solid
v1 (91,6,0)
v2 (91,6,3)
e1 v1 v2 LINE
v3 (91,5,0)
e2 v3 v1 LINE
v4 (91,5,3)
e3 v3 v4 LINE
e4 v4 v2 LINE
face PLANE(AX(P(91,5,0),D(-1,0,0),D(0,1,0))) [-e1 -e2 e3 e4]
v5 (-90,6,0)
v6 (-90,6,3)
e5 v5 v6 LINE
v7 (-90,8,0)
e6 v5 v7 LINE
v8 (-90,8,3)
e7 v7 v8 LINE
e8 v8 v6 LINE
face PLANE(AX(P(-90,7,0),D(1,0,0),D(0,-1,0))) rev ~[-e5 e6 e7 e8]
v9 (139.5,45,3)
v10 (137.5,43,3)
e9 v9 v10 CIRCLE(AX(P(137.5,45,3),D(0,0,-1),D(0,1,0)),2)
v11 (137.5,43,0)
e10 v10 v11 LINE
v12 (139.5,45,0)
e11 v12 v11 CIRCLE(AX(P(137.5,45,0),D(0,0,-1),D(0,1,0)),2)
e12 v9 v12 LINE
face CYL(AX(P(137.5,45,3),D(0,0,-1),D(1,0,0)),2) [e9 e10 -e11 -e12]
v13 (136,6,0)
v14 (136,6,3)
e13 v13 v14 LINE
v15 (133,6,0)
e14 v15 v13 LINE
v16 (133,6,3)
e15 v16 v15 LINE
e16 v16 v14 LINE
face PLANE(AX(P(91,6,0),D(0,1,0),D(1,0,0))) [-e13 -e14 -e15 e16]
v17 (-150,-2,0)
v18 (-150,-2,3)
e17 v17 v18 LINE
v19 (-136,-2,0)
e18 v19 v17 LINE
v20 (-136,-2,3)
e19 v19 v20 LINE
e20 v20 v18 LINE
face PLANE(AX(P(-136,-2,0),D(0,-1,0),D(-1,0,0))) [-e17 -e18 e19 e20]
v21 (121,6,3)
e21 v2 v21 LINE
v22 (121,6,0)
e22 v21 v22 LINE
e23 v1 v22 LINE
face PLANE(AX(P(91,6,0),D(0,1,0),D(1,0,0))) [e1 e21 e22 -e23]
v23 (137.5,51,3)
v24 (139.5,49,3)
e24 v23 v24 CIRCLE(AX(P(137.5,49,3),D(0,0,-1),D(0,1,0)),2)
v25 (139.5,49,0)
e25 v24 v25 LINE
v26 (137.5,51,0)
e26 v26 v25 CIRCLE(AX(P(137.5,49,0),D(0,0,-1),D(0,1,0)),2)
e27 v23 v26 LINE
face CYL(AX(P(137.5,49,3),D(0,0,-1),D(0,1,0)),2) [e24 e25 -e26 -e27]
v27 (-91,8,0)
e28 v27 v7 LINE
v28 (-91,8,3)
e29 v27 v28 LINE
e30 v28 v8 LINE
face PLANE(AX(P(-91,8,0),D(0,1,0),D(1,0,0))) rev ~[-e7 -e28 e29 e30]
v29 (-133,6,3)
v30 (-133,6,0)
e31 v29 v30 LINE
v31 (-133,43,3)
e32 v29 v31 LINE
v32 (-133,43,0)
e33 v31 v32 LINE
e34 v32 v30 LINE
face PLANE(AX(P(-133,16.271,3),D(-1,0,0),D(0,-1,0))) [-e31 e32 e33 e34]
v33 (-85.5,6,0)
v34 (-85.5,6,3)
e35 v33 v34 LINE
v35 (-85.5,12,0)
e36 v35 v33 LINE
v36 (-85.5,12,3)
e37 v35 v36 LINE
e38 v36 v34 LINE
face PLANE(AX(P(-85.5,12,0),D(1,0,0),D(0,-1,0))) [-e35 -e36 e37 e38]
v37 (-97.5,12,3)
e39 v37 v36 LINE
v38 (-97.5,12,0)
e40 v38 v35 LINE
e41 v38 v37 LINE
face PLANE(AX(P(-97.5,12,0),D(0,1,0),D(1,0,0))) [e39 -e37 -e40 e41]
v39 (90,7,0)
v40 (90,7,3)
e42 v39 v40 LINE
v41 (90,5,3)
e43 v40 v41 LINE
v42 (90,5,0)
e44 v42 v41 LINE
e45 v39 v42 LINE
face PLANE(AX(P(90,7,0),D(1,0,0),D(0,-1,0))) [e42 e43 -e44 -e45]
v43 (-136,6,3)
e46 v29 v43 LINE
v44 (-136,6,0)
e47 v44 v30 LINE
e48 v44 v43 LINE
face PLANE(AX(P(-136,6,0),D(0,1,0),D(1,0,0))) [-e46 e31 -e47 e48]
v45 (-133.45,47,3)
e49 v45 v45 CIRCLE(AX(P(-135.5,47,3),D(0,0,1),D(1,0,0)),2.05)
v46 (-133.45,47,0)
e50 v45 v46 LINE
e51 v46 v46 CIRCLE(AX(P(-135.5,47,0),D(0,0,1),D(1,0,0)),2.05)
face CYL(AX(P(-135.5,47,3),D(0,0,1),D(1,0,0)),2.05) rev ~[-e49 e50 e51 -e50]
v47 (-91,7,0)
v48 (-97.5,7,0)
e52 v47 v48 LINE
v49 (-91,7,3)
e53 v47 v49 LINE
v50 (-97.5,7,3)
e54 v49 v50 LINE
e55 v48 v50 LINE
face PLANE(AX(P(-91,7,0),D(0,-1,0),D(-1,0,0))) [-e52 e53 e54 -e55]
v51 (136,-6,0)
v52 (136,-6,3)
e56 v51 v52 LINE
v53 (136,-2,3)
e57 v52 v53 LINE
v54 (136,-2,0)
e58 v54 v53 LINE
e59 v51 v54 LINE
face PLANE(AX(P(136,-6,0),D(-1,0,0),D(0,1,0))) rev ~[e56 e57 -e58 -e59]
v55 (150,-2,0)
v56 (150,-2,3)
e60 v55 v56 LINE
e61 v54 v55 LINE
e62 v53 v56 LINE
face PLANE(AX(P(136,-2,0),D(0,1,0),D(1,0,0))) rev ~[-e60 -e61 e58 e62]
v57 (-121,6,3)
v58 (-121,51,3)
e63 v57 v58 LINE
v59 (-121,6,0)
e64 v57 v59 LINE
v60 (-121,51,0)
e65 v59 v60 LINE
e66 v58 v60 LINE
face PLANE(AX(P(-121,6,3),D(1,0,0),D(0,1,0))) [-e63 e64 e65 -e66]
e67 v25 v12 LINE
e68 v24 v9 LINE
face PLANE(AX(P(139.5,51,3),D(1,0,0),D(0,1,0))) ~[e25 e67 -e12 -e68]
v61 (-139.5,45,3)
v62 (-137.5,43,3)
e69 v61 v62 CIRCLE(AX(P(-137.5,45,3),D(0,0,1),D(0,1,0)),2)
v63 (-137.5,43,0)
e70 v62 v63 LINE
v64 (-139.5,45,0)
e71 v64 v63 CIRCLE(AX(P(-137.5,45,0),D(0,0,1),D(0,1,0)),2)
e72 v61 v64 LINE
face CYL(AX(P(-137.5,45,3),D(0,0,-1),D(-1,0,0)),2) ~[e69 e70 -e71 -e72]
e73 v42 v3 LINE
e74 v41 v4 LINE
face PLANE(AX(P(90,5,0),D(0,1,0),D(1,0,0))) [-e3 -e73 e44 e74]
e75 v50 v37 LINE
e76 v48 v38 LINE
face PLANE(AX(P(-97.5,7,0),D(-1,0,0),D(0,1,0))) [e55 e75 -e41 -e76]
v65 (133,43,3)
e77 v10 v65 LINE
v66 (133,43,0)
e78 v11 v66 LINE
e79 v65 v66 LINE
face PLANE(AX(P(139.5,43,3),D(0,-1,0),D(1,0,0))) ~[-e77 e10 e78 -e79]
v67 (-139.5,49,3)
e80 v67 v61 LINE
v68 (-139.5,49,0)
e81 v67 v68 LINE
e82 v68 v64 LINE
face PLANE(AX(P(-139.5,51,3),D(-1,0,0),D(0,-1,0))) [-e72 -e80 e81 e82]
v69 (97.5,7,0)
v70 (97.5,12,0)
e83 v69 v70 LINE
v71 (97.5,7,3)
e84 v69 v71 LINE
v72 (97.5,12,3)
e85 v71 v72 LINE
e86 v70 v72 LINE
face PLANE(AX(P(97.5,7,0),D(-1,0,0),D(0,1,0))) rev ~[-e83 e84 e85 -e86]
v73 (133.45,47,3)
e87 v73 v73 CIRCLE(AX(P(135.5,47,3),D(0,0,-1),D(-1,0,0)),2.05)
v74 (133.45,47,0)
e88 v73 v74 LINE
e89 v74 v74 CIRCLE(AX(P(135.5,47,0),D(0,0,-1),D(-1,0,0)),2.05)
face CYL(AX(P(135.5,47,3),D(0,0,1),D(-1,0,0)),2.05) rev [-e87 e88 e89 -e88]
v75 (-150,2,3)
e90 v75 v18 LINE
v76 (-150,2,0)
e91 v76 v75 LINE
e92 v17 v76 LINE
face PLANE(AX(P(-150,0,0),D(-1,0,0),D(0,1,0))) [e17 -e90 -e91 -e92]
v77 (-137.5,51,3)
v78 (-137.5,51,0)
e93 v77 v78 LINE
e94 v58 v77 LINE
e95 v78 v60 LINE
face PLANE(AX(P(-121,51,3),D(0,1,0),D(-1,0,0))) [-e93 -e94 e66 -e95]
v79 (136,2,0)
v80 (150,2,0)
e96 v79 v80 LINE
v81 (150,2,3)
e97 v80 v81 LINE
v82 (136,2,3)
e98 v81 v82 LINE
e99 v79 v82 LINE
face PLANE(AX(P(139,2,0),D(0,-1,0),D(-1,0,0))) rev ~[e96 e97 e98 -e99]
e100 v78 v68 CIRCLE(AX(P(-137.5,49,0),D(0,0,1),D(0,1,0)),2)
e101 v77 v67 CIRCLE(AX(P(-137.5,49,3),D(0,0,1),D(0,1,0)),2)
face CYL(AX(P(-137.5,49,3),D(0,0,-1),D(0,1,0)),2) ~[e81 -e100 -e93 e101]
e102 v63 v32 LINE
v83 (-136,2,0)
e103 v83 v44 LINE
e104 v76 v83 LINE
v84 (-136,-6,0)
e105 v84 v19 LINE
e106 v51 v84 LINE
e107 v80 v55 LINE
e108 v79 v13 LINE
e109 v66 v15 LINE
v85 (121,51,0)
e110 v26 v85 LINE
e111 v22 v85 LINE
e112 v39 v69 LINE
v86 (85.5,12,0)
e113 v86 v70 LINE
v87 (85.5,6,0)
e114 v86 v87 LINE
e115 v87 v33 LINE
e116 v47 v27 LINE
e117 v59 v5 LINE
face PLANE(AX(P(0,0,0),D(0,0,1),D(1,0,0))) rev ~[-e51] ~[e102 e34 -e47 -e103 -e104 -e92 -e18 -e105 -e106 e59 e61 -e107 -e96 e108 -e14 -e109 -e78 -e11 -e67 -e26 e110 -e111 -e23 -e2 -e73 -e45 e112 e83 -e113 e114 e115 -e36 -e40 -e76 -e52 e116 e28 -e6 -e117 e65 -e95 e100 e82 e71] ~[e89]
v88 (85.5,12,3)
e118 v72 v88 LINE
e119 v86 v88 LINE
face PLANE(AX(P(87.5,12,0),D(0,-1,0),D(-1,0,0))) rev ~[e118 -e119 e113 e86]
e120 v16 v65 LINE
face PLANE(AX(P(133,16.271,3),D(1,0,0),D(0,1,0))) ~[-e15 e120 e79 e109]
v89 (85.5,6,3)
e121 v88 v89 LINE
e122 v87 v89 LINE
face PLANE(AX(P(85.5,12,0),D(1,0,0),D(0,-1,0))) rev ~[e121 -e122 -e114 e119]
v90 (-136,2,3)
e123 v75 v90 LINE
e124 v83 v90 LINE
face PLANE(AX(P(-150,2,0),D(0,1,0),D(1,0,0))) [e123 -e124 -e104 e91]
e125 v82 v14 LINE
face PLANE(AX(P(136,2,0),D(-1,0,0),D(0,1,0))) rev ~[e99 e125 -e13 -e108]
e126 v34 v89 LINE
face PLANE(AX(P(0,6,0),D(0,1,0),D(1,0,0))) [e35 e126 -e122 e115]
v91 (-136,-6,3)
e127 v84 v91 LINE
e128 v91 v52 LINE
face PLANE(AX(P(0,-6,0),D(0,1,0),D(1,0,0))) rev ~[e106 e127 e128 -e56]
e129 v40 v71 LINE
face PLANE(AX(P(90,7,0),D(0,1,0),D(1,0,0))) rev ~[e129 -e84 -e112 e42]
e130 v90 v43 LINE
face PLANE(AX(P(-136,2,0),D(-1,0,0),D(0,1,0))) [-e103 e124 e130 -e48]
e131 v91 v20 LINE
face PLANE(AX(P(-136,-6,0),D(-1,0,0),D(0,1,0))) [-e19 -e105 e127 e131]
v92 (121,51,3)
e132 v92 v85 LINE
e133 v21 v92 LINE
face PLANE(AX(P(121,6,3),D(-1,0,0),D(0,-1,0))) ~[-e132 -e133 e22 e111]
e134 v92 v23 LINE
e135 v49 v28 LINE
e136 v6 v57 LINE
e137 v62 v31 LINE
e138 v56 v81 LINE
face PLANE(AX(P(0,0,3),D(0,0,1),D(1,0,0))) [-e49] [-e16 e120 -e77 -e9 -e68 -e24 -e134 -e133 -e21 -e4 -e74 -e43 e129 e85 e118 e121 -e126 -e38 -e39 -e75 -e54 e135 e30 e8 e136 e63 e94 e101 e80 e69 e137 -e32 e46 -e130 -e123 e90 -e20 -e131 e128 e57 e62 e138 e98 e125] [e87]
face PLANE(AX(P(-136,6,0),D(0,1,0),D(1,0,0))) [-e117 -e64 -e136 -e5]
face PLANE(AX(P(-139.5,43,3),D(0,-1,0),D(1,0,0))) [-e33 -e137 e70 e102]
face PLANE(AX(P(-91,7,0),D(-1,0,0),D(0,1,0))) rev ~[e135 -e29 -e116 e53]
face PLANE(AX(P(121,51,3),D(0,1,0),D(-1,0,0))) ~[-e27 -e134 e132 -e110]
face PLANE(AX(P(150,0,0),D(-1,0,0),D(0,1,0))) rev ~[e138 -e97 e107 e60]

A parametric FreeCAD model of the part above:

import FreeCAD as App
import Part
import Sketcher

V = App.Vector


def edges_at(feature, points):
    """Names of the edges that pass closest to the given points."""
    edges = feature.Shape.Edges
    near = lambda p: min(range(len(edges)), key=lambda i: edges[i].distToShape(Part.Vertex(*p))[0])
    return sorted({f"Edge{near(p) + 1}" for p in points})

doc = App.newDocument("Part")
body = doc.addObject("PartDesign::Body", "Body")

sketch1 = doc.addObject("Sketcher::SketchObject", "Sketch")
body.addObject(sketch1)
sketch1.AttachmentSupport = (doc.XY_Plane, [""])
sketch1.MapMode = "FlatFace"
sketch1.addGeometry([
    Part.LineSegment(V(85.5, 6, 0), V(-85.5, 6, 0)),
    Part.LineSegment(V(-85.5, 6, 0), V(-85.5, 12, 0)),
    Part.LineSegment(V(-85.5, 12, 0), V(-97.5, 12, 0)),
    Part.LineSegment(V(-97.5, 12, 0), V(-97.5, 7, 0)),
    Part.LineSegment(V(-97.5, 7, 0), V(-91, 7, 0)),
    Part.LineSegment(V(-91, 7, 0), V(-91, 8, 0)),
    Part.LineSegment(V(-91, 8, 0), V(-90, 8, 0)),
    Part.LineSegment(V(-90, 8, 0), V(-90, 6, 0)),
    Part.LineSegment(V(-90, 6, 0), V(-136, 6, 0)),
    Part.LineSegment(V(-136, 6, 0), V(-136, 2, 0)),
    Part.LineSegment(V(-136, 2, 0), V(-150, 2, 0)),
    Part.LineSegment(V(-150, 2, 0), V(-150, -2, 0)),
    Part.LineSegment(V(-150, -2, 0), V(-136, -2, 0)),
    Part.LineSegment(V(-136, -2, 0), V(-136, -6, 0)),
    Part.LineSegment(V(-136, -6, 0), V(136, -6, 0)),
    Part.LineSegment(V(136, -6, 0), V(136, -2, 0)),
    Part.LineSegment(V(136, -2, 0), V(150, -2, 0)),
    Part.LineSegment(V(150, -2, 0), V(150, 2, 0)),
    Part.LineSegment(V(150, 2, 0), V(136, 2, 0)),
    Part.LineSegment(V(136, 2, 0), V(136, 6, 0)),
    Part.LineSegment(V(136, 6, 0), V(91, 6, 0)),
    Part.LineSegment(V(91, 6, 0), V(91, 5, 0)),
    Part.LineSegment(V(91, 5, 0), V(90, 5, 0)),
    Part.LineSegment(V(90, 5, 0), V(90, 7, 0)),
    Part.LineSegment(V(90, 7, 0), V(97.5, 7, 0)),
    Part.LineSegment(V(97.5, 7, 0), V(97.5, 12, 0)),
    Part.LineSegment(V(97.5, 12, 0), V(85.5, 12, 0)),
    Part.LineSegment(V(85.5, 12, 0), V(85.5, 6, 0)),
], False)
sketch1.addConstraint([
    Sketcher.Constraint("Coincident", 0, 2, 1, 1),
    Sketcher.Constraint("Coincident", 1, 2, 2, 1),
    Sketcher.Constraint("Coincident", 2, 2, 3, 1),
    Sketcher.Constraint("Coincident", 3, 2, 4, 1),
    Sketcher.Constraint("Coincident", 4, 2, 5, 1),
    Sketcher.Constraint("Coincident", 5, 2, 6, 1),
    Sketcher.Constraint("Coincident", 6, 2, 7, 1),
    Sketcher.Constraint("Coincident", 7, 2, 8, 1),
    Sketcher.Constraint("Coincident", 8, 2, 9, 1),
    Sketcher.Constraint("Coincident", 9, 2, 10, 1),
    Sketcher.Constraint("Coincident", 10, 2, 11, 1),
    Sketcher.Constraint("Coincident", 11, 2, 12, 1),
    Sketcher.Constraint("Coincident", 12, 2, 13, 1),
    Sketcher.Constraint("Coincident", 13, 2, 14, 1),
    Sketcher.Constraint("Coincident", 14, 2, 15, 1),
    Sketcher.Constraint("Coincident", 15, 2, 16, 1),
    Sketcher.Constraint("Coincident", 16, 2, 17, 1),
    Sketcher.Constraint("Coincident", 17, 2, 18, 1),
    Sketcher.Constraint("Coincident", 18, 2, 19, 1),
    Sketcher.Constraint("Coincident", 19, 2, 20, 1),
    Sketcher.Constraint("Coincident", 20, 2, 21, 1),
    Sketcher.Constraint("Coincident", 21, 2, 22, 1),
    Sketcher.Constraint("Coincident", 22, 2, 23, 1),
    Sketcher.Constraint("Coincident", 23, 2, 24, 1),
    Sketcher.Constraint("Coincident", 24, 2, 25, 1),
    Sketcher.Constraint("Coincident", 25, 2, 26, 1),
    Sketcher.Constraint("Coincident", 26, 2, 27, 1),
    Sketcher.Constraint("Coincident", 27, 2, 0, 1),
    Sketcher.Constraint("Horizontal", 0),
    Sketcher.Constraint("Vertical", 1),
    Sketcher.Constraint("Horizontal", 2),
    Sketcher.Constraint("Vertical", 3),
    Sketcher.Constraint("Horizontal", 4),
    Sketcher.Constraint("Vertical", 5),
    Sketcher.Constraint("Horizontal", 6),
    Sketcher.Constraint("Vertical", 7),
    Sketcher.Constraint("Horizontal", 8),
    Sketcher.Constraint("Vertical", 9),
    Sketcher.Constraint("Horizontal", 10),
    Sketcher.Constraint("Vertical", 11),
    Sketcher.Constraint("Horizontal", 12),
    Sketcher.Constraint("Vertical", 13),
    Sketcher.Constraint("Horizontal", 14),
    Sketcher.Constraint("Vertical", 15),
    Sketcher.Constraint("Horizontal", 16),
    Sketcher.Constraint("Vertical", 17),
    Sketcher.Constraint("Horizontal", 18),
    Sketcher.Constraint("Vertical", 19),
    Sketcher.Constraint("Horizontal", 20),
    Sketcher.Constraint("Vertical", 21),
    Sketcher.Constraint("Horizontal", 22),
    Sketcher.Constraint("Vertical", 23),
    Sketcher.Constraint("Horizontal", 24),
    Sketcher.Constraint("Vertical", 25),
    Sketcher.Constraint("Horizontal", 26),
    Sketcher.Constraint("Vertical", 27),
    Sketcher.Constraint("Symmetric", 8, 2, 14, 2, -1, 1),
    Sketcher.Constraint("Symmetric", 10, 2, 16, 2, -1, 1),
    Sketcher.Constraint("Symmetric", 12, 2, 18, 2, -1, 1),
    Sketcher.Constraint("Symmetric", 12, 2, 15, 2, -2),
    Sketcher.Constraint("Symmetric", 3, 2, 24, 2, -2),
    Sketcher.Constraint("Symmetric", 1, 2, 26, 2, -2),
    Sketcher.Constraint("Horizontal", 0, 2, 7, 2),
    Sketcher.Constraint("Horizontal", 8, 2, 19, 2),
    Sketcher.Constraint("Equal", 6, 22),
    Sketcher.Constraint("Equal", 22, 5),
    Sketcher.Constraint("Equal", 9, 11),
    Sketcher.Constraint("Equal", 5, 21),
    Sketcher.Constraint("DistanceX", 2, 2, 2, 1, 12.0),
    Sketcher.Constraint("DistanceX", 10, 2, 10, 1, 14.0),
    Sketcher.Constraint("DistanceX", 14, 1, 14, 2, 272.0),
    Sketcher.Constraint("DistanceY", 1, 1, 1, 2, 6.0),
    Sketcher.Constraint("DistanceY", 3, 2, 3, 1, 5.0),
    Sketcher.Constraint("DistanceY", 7, 2, 7, 1, 2.0),
    Sketcher.Constraint("DistanceY", 9, 2, 9, 1, 4.0),
    Sketcher.Constraint("DistanceX", 4, 1, 4, 2, 6.5),
    Sketcher.Constraint("DistanceX", 0, 2, -1, 1, 85.5),
    Sketcher.Constraint("DistanceX", 20, 2, 24, 2, 6.5),
])
pad1 = doc.addObject("PartDesign::Pad", "Pad")
body.addObject(pad1)
pad1.Profile = sketch1
pad1.Length = 3

sketch2 = doc.addObject("Sketcher::SketchObject", "Sketch001")
body.addObject(sketch2)
sketch2.AttachmentSupport = (doc.XY_Plane, [""])
sketch2.MapMode = "FlatFace"
sketch2.addGeometry(Part.Circle(V(-129.5, 0, 0), V(0, 0, 1), 2.05), False)
sketch2.addConstraint([
    Sketcher.Constraint("PointOnObject", 0, 3, -1),
    Sketcher.Constraint("Diameter", 0, 4.1),
    Sketcher.Constraint("DistanceX", 0, 3, -1, 1, 129.5),
])
pocket1 = doc.addObject("PartDesign::Pocket", "Pocket")
body.addObject(pocket1)
pocket1.Profile = sketch2
pocket1.Length = 3
pocket1.Reversed = True

sketch3 = doc.addObject("Sketcher::SketchObject", "Sketch002")
body.addObject(sketch3)
sketch3.AttachmentSupport = (doc.XY_Plane, [""])
sketch3.MapMode = "FlatFace"
sketch3.AttachmentOffset = App.Placement(V(0, 0, 3), App.Rotation())
sketch3.addGeometry([
    Part.LineSegment(V(-133, 6, 0), V(-121, 6, 0)),
    Part.LineSegment(V(-121, 6, 0), V(-121, 51, 0)),
    Part.LineSegment(V(-121, 51, 0), V(-139.5, 51, 0)),
    Part.LineSegment(V(-139.5, 51, 0), V(-139.5, 43, 0)),
    Part.LineSegment(V(-139.5, 43, 0), V(-133, 43, 0)),
    Part.LineSegment(V(-133, 43, 0), V(-133, 6, 0)),
    Part.Circle(V(-135.5, 47, 0), V(0, 0, 1), 2.05),
    Part.Circle(V(-129.5, 0, 0), V(0, 0, 1), 2.05),
], False)
sketch3.addConstraint([
    Sketcher.Constraint("Coincident", 0, 2, 1, 1),
    Sketcher.Constraint("Coincident", 1, 2, 2, 1),
    Sketcher.Constraint("Coincident", 2, 2, 3, 1),
    Sketcher.Constraint("Coincident", 3, 2, 4, 1),
    Sketcher.Constraint("Coincident", 4, 2, 5, 1),
    Sketcher.Constraint("Coincident", 5, 2, 0, 1),
    Sketcher.Constraint("Horizontal", 0),
    Sketcher.Constraint("Vertical", 1),
    Sketcher.Constraint("Horizontal", 2),
    Sketcher.Constraint("Vertical", 3),
    Sketcher.Constraint("Horizontal", 4),
    Sketcher.Constraint("Vertical", 5),
    Sketcher.Constraint("Equal", 6, 7),
    Sketcher.Constraint("PointOnObject", 7, 3, -1),
    Sketcher.Constraint("DistanceY", 1, 1, 1, 2, 45.0),
    Sketcher.Constraint("DistanceY", 3, 2, 3, 1, 8.0),
    Sketcher.Constraint("DistanceX", 4, 1, 4, 2, 6.5),
    Sketcher.Constraint("DistanceY", -1, 1, 6, 3, 47.0),
    Sketcher.Constraint("DistanceY", -1, 1, 0, 2, 6.0),
    Sketcher.Constraint("DistanceX", 6, 3, 7, 3, 6.0),
    Sketcher.Constraint("Diameter", 6, 4.1),
    Sketcher.Constraint("DistanceX", 0, 1, 0, 2, 12.0),
    Sketcher.Constraint("DistanceX", 0, 2, -1, 1, 121.0),
    Sketcher.Constraint("DistanceX", 2, 2, 6, 3, 4.0),
])
pad2 = doc.addObject("PartDesign::Pad", "Pad001")
body.addObject(pad2)
pad2.Profile = sketch3
pad2.Length = 3
pad2.Reversed = True
doc.recompute()

fillet = doc.addObject("PartDesign::Fillet", "Fillet")
body.addObject(fillet)
fillet.Base = (pad2, edges_at(pad2, [(-139.5, 51, 1.5), (-139.5, 43, 1.5)]))
fillet.Radius = 2
doc.recompute()

mirrored = doc.addObject("PartDesign::Mirrored", "Mirrored")
body.addObject(mirrored)
mirrored.Originals = [pocket1, pad2, fillet]
mirrored.MirrorPlane = (doc.YZ_Plane, [""])
body.Tip = mirrored

doc.recompute()
